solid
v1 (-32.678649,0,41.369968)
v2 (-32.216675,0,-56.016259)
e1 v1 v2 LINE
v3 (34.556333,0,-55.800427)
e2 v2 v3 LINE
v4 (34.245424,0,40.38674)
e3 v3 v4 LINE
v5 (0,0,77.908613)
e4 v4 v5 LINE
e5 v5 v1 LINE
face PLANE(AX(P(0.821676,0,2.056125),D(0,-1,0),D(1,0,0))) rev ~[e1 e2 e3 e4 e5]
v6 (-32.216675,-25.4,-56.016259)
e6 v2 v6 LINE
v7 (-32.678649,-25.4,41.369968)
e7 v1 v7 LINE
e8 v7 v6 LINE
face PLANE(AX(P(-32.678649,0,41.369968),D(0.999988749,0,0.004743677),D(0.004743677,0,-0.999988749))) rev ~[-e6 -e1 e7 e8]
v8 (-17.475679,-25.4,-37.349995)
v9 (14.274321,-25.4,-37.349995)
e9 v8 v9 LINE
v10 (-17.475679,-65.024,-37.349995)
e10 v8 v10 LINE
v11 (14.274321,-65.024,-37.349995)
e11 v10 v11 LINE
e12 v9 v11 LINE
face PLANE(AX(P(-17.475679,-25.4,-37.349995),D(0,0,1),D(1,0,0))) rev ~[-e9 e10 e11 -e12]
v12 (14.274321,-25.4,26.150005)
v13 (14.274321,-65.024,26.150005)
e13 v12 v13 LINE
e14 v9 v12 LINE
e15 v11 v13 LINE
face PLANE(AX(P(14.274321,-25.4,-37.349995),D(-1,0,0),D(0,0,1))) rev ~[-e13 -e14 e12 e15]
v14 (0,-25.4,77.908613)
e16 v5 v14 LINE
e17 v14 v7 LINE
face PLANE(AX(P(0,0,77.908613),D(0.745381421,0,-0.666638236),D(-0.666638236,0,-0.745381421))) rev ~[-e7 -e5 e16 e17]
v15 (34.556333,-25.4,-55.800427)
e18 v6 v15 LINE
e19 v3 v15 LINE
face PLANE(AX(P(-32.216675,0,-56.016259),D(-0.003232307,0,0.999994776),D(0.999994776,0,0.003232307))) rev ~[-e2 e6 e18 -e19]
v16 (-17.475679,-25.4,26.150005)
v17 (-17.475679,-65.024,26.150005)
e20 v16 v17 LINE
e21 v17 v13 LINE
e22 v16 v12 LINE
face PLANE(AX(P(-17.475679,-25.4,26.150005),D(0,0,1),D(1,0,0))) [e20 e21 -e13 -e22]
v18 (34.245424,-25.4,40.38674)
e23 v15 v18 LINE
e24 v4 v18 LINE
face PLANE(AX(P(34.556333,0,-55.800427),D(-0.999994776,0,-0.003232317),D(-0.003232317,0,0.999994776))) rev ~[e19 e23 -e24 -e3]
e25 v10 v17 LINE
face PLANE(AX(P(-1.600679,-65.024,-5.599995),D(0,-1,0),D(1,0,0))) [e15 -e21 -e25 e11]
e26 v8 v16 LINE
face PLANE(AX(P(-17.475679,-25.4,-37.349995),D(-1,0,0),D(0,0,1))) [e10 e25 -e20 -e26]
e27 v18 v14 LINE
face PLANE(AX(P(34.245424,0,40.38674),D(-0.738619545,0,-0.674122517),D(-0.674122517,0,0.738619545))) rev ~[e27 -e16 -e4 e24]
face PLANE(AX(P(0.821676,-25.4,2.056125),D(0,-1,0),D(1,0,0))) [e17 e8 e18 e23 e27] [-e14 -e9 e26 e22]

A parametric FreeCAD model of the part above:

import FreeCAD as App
import Part
import Sketcher
Q = App.Units.Quantity


def add_polygon(sketch, points):
    """Adds a closed chain of lines whose ends are joined by coincident constraints."""
    first, n = sketch.GeometryCount, len(points)
    for a, b in zip(points, points[1:] + points[:1]):
        sketch.addGeometry(Part.LineSegment(App.Vector(*a, 0), App.Vector(*b, 0)), False)
    for i in range(n):
        sketch.addConstraint(Sketcher.Constraint("Coincident", first + i, 2, first + (i + 1) % n, 1))

doc = App.newDocument("Part")
body = doc.addObject("PartDesign::Body", "Body")

# Sketch on XZ plane
sketch1 = body.newObject("Sketcher::SketchObject", "Sketch")
sketch1.AttachmentSupport = (doc.getObject("XZ_Plane"), [""])
sketch1.MapMode = "FlatFace"
add_polygon(sketch1, [(-33, 41), (-32, -56), (35, -56), (34, 40), (0, 78)])  # lines 0-4
sketch1.addConstraint([
    Sketcher.Constraint("PointOnObject", 3, 2, -2),
    Sketcher.Constraint("Perpendicular", 1, 2),
    Sketcher.Constraint("Distance", 3, Q("2 in")),
    Sketcher.Constraint("DistanceX", 0, 2, 2, 2, Q("66.462099 mm")),
    Sketcher.Constraint("DistanceY", 0, 2, 2, 2, Q("96.402999 mm")),
    Sketcher.Constraint("Distance", 2, Q("96.187669 mm")),
    Sketcher.Constraint("DistanceY", 0, 2, -1, 1, Q("56.016259 mm")),
    Sketcher.Constraint("DistanceX", 4, 2, -1, 1, Q("32.678649 mm")),
    Sketcher.Constraint("DistanceY", 0, 2, 3, 2, Q("133.924872 mm")),
    Sketcher.Constraint("Distance", 0, Q("97.387323 mm")),
])
pad1 = body.newObject("PartDesign::Pad", "Pad")
pad1.Profile = sketch1
pad1.Length = Q("1 in")

# Sketch on XZ plane
sketch2 = body.newObject("Sketcher::SketchObject", "Sketch001")
sketch2.AttachmentSupport = (doc.getObject("XZ_Plane"), [""])
sketch2.MapMode = "FlatFace"
sketch2.AttachmentOffset = App.Placement(App.Vector(0, 0, 1 * 25.4), App.Rotation())
add_polygon(sketch2, [(-17, 26), (-17, -37), (14, -37), (14, 26)])  # lines 0-3
sketch2.addConstraint([
    Sketcher.Constraint("Vertical", 0),
    Sketcher.Constraint("Horizontal", 1),
    Sketcher.Constraint("Vertical", 2),
    Sketcher.Constraint("Horizontal", 3),
    Sketcher.Constraint("DistanceY", 0, 2, 0, 1, Q("2.5 in")),
    Sketcher.Constraint("DistanceX", 1, 1, 1, 2, Q("1.25 in")),
    Sketcher.Constraint("DistanceX", 0, 2, -1, 1, Q("17.475679 mm")),
    Sketcher.Constraint("DistanceY", 0, 2, -1, 1, Q("37.349995 mm")),
])
pad2 = body.newObject("PartDesign::Pad", "Pad001")
pad2.Profile = sketch2
pad2.Length = Q("1.56 in")

doc.recompute()
